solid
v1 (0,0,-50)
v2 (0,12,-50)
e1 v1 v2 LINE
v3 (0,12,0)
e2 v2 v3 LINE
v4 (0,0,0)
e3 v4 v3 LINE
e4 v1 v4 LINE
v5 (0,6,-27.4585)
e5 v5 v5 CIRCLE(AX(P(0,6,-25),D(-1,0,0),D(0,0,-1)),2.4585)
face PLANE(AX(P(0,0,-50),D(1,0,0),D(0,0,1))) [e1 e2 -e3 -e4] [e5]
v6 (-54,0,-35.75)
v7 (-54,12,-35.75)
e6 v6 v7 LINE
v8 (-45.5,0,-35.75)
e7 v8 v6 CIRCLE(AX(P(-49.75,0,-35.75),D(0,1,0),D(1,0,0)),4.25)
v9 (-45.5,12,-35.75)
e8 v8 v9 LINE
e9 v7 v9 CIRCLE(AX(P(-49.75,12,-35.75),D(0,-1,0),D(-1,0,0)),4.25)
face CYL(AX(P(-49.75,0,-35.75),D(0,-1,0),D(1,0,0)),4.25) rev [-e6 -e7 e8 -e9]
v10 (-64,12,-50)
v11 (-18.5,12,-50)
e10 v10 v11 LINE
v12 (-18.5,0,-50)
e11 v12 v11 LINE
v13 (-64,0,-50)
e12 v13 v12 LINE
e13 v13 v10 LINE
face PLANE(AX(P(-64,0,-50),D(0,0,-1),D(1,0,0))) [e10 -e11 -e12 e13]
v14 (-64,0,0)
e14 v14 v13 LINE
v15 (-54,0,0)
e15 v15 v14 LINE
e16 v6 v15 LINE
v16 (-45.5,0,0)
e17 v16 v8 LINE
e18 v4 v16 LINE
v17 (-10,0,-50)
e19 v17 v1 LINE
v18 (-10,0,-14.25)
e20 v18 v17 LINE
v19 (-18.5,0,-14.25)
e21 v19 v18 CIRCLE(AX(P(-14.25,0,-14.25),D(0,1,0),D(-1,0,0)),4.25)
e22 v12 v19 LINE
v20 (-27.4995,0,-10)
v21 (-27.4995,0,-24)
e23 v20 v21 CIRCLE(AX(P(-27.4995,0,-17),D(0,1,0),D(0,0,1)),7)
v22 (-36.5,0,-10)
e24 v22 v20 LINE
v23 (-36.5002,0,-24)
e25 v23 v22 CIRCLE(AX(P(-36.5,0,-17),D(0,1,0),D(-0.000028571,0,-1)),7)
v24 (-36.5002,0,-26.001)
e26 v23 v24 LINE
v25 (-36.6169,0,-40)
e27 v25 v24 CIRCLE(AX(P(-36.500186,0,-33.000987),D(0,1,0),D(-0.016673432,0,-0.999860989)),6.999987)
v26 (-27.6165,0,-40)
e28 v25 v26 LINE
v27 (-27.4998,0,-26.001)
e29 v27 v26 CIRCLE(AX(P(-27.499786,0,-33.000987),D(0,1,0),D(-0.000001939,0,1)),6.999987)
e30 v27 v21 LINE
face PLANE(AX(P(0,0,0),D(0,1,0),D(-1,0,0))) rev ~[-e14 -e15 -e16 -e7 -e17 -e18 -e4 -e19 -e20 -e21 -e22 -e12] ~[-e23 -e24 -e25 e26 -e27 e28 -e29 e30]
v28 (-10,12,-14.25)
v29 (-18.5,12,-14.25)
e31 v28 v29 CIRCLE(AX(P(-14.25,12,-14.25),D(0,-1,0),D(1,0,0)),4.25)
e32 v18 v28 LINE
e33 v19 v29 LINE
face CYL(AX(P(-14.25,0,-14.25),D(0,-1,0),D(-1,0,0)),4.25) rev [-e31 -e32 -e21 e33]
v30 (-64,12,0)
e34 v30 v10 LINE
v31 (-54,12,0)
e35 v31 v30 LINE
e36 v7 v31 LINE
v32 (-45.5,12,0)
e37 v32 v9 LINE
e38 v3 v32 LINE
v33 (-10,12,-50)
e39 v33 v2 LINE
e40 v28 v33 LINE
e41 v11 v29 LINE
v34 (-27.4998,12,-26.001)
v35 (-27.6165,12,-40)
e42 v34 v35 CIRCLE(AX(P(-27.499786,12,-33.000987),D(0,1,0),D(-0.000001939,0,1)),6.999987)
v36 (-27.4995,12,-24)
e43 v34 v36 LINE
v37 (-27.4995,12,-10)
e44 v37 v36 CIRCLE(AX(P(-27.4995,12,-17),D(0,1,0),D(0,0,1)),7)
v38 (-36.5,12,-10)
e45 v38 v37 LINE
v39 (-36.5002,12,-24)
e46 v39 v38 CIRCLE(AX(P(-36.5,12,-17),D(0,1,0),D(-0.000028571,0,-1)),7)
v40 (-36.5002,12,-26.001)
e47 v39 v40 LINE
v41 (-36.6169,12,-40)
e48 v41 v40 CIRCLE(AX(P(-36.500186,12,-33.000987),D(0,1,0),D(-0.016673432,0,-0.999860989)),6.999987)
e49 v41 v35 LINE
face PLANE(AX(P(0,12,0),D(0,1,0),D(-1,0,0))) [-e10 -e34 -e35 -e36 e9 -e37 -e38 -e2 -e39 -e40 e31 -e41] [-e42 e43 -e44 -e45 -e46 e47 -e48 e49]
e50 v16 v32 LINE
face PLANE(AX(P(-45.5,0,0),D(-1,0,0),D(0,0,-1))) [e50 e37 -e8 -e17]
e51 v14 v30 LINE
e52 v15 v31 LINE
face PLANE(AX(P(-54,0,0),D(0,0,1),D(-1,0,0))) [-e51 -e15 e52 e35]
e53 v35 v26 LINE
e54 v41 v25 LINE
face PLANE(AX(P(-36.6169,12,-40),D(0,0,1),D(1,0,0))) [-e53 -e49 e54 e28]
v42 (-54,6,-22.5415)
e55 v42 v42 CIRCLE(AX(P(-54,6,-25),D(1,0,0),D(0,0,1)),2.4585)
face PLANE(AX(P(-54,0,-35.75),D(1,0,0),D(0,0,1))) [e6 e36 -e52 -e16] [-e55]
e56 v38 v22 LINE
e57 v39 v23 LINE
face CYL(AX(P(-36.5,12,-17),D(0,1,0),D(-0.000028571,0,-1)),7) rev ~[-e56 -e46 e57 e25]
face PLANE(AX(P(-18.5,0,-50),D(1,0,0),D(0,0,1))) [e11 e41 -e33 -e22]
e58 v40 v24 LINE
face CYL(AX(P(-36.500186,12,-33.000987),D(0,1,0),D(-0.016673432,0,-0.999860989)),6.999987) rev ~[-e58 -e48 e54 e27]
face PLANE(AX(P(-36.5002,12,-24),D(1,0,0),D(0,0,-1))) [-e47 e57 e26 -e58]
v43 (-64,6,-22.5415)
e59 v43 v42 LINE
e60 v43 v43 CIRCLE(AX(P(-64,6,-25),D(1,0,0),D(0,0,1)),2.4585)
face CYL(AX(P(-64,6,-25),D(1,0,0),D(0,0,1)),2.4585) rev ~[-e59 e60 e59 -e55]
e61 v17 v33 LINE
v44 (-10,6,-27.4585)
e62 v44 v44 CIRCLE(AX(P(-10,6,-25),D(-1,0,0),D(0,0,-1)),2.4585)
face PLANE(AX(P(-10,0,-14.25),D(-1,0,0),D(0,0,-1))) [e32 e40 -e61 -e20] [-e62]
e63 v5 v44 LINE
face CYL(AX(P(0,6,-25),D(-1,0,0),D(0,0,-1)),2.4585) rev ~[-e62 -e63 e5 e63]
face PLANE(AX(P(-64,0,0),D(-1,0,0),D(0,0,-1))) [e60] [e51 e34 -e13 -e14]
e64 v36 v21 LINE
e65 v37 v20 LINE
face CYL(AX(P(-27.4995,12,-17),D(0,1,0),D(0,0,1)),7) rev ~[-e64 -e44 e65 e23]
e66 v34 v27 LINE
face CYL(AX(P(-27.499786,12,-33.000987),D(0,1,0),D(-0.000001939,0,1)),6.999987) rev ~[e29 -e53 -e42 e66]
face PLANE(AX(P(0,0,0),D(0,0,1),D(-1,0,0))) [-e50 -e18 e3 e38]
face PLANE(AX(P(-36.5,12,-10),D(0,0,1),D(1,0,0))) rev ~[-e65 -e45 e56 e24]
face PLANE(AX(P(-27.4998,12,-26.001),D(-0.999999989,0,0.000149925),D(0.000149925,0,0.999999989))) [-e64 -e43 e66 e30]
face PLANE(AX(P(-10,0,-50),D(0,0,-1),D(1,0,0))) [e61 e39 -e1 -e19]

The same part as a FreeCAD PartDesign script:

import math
import FreeCAD as App
import Part
import Sketcher

V = App.Vector

doc = App.newDocument("Part")
body = doc.addObject("PartDesign::Body", "Body")

# Sketch on XZ plane
sketch1 = doc.addObject("Sketcher::SketchObject", "Sketch")
body.addObject(sketch1)
sketch1.AttachmentSupport = (doc.XZ_Plane, [""])
sketch1.MapMode = "FlatFace"
sketch1.addGeometry(Part.LineSegment(V(-45.5, 0, 0), V(0, 0, 0)), False)
sketch1.addGeometry(Part.LineSegment(V(0, 0, 0), V(0, -50, 0)), False)
sketch1.addGeometry(Part.LineSegment(V(0, -50, 0), V(-10, -50, 0)), False)
sketch1.addGeometry(Part.LineSegment(V(-10, -50, 0), V(-10, -14.2, 0)), False)
sketch1.addGeometry(Part.ArcOfCircle(Part.Circle(V(-14.2, -14.2, 0), V(0, 0, 1), 4.2), math.radians(0), math.radians(180)), False)
sketch1.addGeometry(Part.LineSegment(V(-18.5, -14.2, 0), V(-18.5, -50, 0)), False)
sketch1.addGeometry(Part.LineSegment(V(-18.5, -50, 0), V(-64, -50, 0)), False)
sketch1.addGeometry(Part.LineSegment(V(-64, -50, 0), V(-64, 0, 0)), False)
sketch1.addGeometry(Part.LineSegment(V(-64, 0, 0), V(-54, 0, 0)), False)
sketch1.addGeometry(Part.LineSegment(V(-54, 0, 0), V(-54, -35.8, 0)), False)
sketch1.addGeometry(Part.ArcOfCircle(Part.Circle(V(-49.8, -35.8, 0), V(0, 0, 1), 4.2), math.radians(180), math.radians(360)), False)
sketch1.addGeometry(Part.LineSegment(V(-45.5, -35.8, 0), V(-45.5, 0, 0)), False)
sketch1.addConstraint(Sketcher.Constraint("Coincident", 0, 2, 1, 1))
sketch1.addConstraint(Sketcher.Constraint("Coincident", 1, 2, 2, 1))
sketch1.addConstraint(Sketcher.Constraint("Coincident", 2, 2, 3, 1))
sketch1.addConstraint(Sketcher.Constraint("Tangent", 3, 2, 4, 1))
sketch1.addConstraint(Sketcher.Constraint("Tangent", 4, 2, 5, 1))
sketch1.addConstraint(Sketcher.Constraint("Coincident", 5, 2, 6, 1))
sketch1.addConstraint(Sketcher.Constraint("Coincident", 6, 2, 7, 1))
sketch1.addConstraint(Sketcher.Constraint("Coincident", 7, 2, 8, 1))
sketch1.addConstraint(Sketcher.Constraint("Coincident", 8, 2, 9, 1))
sketch1.addConstraint(Sketcher.Constraint("Tangent", 9, 2, 10, 1))
sketch1.addConstraint(Sketcher.Constraint("Tangent", 10, 2, 11, 1))
sketch1.addConstraint(Sketcher.Constraint("Coincident", 11, 2, 0, 1))
sketch1.addConstraint(Sketcher.Constraint("Horizontal", 0))
sketch1.addConstraint(Sketcher.Constraint("Vertical", 1))
sketch1.addConstraint(Sketcher.Constraint("Horizontal", 2))
sketch1.addConstraint(Sketcher.Constraint("Vertical", 3))
sketch1.addConstraint(Sketcher.Constraint("Vertical", 5))
sketch1.addConstraint(Sketcher.Constraint("Horizontal", 6))
sketch1.addConstraint(Sketcher.Constraint("Vertical", 7))
sketch1.addConstraint(Sketcher.Constraint("Horizontal", 8))
sketch1.addConstraint(Sketcher.Constraint("Vertical", 9))
sketch1.addConstraint(Sketcher.Constraint("Vertical", 11))
sketch1.addConstraint(Sketcher.Constraint("Coincident", 0, 2, -1, 1))
sketch1.addConstraint(Sketcher.Constraint("Equal", 4, 10))
sketch1.addConstraint(Sketcher.Constraint("PointOnObject", 7, 2, -1))
sketch1.addConstraint(Sketcher.Constraint("Horizontal", 2, 2, 5, 2))
sketch1.addConstraint(Sketcher.Constraint("Equal", 0, 6))
sketch1.addConstraint(Sketcher.Constraint("Equal", 5, 9))
sketch1.addConstraint(Sketcher.Constraint("DistanceX", 2, 2, 2, 1, 10.0))
sketch1.addConstraint(Sketcher.Constraint("DistanceY", 1, 2, 1, 1, 50.0))
sketch1.addConstraint(Sketcher.Constraint("Radius", 4, 4.25))
sketch1.addConstraint(Sketcher.Constraint("DistanceX", 6, 2, -1, 1, 64.0))
sketch1.addConstraint(Sketcher.Constraint("DistanceY", 3, 1, 3, 2, 35.75))
pad1 = doc.addObject("PartDesign::Pad", "Pad")
body.addObject(pad1)
pad1.Profile = sketch1
pad1.Length = 12
pad1.Reversed = True

# Sketch on YZ plane
sketch2 = doc.addObject("Sketcher::SketchObject", "Sketch001")
body.addObject(sketch2)
sketch2.AttachmentSupport = (doc.YZ_Plane, [""])
sketch2.MapMode = "FlatFace"
sketch2.addGeometry(Part.Circle(V(6, -25, 0), V(0, 0, 1), 2.5), False)
sketch2.addConstraint(Sketcher.Constraint("Diameter", 0, 4.917))
sketch2.addConstraint(Sketcher.Constraint("DistanceX", -1, 1, 0, 3, 6.0))
sketch2.addConstraint(Sketcher.Constraint("DistanceY", 0, 3, -1, 1, 25.0))
doc.recompute()
hole = doc.addObject("PartDesign::Hole", "Hole")
body.addObject(hole)
hole.Profile = sketch2
hole.ThreadType = "None"
hole.Diameter = 4.917
hole.DepthType = "Dimension"
hole.Depth = 10
hole.DrillPoint = "Flat"

# Sketch on YZ plane
sketch3 = doc.addObject("Sketcher::SketchObject", "Sketch002")
body.addObject(sketch3)
sketch3.AttachmentSupport = (doc.YZ_Plane, [""])
sketch3.MapMode = "FlatFace"
sketch3.AttachmentOffset = App.Placement(V(0, 0, -64), App.Rotation())
sketch3.addGeometry(Part.Circle(V(6, -25, 0), V(0, 0, 1), 2.5), False)
sketch3.addConstraint(Sketcher.Constraint("Diameter", 0, 4.917))
sketch3.addConstraint(Sketcher.Constraint("DistanceX", -1, 1, 0, 3, 6.0))
sketch3.addConstraint(Sketcher.Constraint("DistanceY", 0, 3, -1, 1, 25.0))
doc.recompute()
hole2 = doc.addObject("PartDesign::Hole", "Hole001")
body.addObject(hole2)
hole2.Profile = sketch3
hole2.ThreadType = "None"
hole2.Diameter = 4.917
hole2.DepthType = "Dimension"
hole2.Depth = 10
hole2.DrillPoint = "Flat"
hole2.Reversed = True

# Sketch on XZ plane
sketch4 = doc.addObject("Sketcher::SketchObject", "Sketch003")
body.addObject(sketch4)
sketch4.AttachmentSupport = (doc.XZ_Plane, [""])
sketch4.MapMode = "FlatFace"
sketch4.AttachmentOffset = App.Placement(V(0, 0, -12), App.Rotation())
sketch4.addGeometry(Part.ArcOfCircle(Part.Circle(V(-36.5, -17, 0), V(0, 0, 1), 7), math.radians(90), math.radians(270)), False)
sketch4.addGeometry(Part.LineSegment(V(-36.5, -10, 0), V(-27.5, -10, 0)), False)
sketch4.addGeometry(Part.ArcOfCircle(Part.Circle(V(-27.5, -17, 0), V(0, 0, 1), 7), math.radians(-90), math.radians(90)), False)
sketch4.addGeometry(Part.LineSegment(V(-27.5, -24, 0), V(-27.5, -26, 0)), False)
sketch4.addGeometry(Part.ArcOfCircle(Part.Circle(V(-27.5, -33, 0), V(0, 0, 1), 7), math.radians(-91), math.radians(90)), False)
sketch4.addGeometry(Part.LineSegment(V(-27.6, -40, 0), V(-36.6, -40, 0)), False)
sketch4.addGeometry(Part.ArcOfCircle(Part.Circle(V(-36.5, -33, 0), V(0, 0, 1), 7), math.radians(90), math.radians(269)), False)
sketch4.addGeometry(Part.LineSegment(V(-36.5, -26, 0), V(-36.5, -24, 0)), False)
sketch4.addConstraint(Sketcher.Constraint("Tangent", 0, 1, 1, 1))
sketch4.addConstraint(Sketcher.Constraint("Tangent", 1, 2, 2, 2))
sketch4.addConstraint(Sketcher.Constraint("Coincident", 2, 1, 3, 1))
sketch4.addConstraint(Sketcher.Constraint("Coincident", 3, 2, 4, 2))
sketch4.addConstraint(Sketcher.Constraint("Coincident", 4, 1, 5, 1))
sketch4.addConstraint(Sketcher.Constraint("Coincident", 5, 2, 6, 2))
sketch4.addConstraint(Sketcher.Constraint("Coincident", 6, 1, 7, 1))
sketch4.addConstraint(Sketcher.Constraint("Coincident", 7, 2, 0, 2))
sketch4.addConstraint(Sketcher.Constraint("Horizontal", 1))
sketch4.addConstraint(Sketcher.Constraint("Horizontal", 5))
sketch4.addConstraint(Sketcher.Constraint("Vertical", 7))
sketch4.addConstraint(Sketcher.Constraint("Equal", 0, 2))
sketch4.addConstraint(Sketcher.Constraint("Equal", 2, 4))
sketch4.addConstraint(Sketcher.Constraint("Equal", 4, 6))
sketch4.addConstraint(Sketcher.Constraint("Horizontal", 4, 3, 6, 3))
sketch4.addConstraint(Sketcher.Constraint("Vertical", 0, 3, 6, 3))
sketch4.addConstraint(Sketcher.Constraint("Vertical", 1, 2, 2, 1))
sketch4.addConstraint(Sketcher.Constraint("Vertical", 4, 3, 3, 2))
sketch4.addConstraint(Sketcher.Constraint("Vertical", 0, 1, 6, 1))
sketch4.addConstraint(Sketcher.Constraint("Equal", 1, 5))
sketch4.addConstraint(Sketcher.Constraint("Radius", 0, 7.0))
sketch4.addConstraint(Sketcher.Constraint("DistanceY", 4, 1, 2, 3, 23.0))
sketch4.addConstraint(Sketcher.Constraint("DistanceY", 0, 3, -1, 1, 17.0))
sketch4.addConstraint(Sketcher.Constraint("DistanceX", 0, 3, -1, 1, 36.5))
sketch4.addConstraint(Sketcher.Constraint("DistanceY", 7, 1, 7, 2, 2.001))
sketch4.addConstraint(Sketcher.Constraint("DistanceX", 1, 1, 1, 2, 9.0005))
pocket1 = doc.addObject("PartDesign::Pocket", "Pocket")
body.addObject(pocket1)
pocket1.Profile = sketch4
pocket1.Type = "ThroughAll"
pocket1.Reversed = True

doc.recompute()
